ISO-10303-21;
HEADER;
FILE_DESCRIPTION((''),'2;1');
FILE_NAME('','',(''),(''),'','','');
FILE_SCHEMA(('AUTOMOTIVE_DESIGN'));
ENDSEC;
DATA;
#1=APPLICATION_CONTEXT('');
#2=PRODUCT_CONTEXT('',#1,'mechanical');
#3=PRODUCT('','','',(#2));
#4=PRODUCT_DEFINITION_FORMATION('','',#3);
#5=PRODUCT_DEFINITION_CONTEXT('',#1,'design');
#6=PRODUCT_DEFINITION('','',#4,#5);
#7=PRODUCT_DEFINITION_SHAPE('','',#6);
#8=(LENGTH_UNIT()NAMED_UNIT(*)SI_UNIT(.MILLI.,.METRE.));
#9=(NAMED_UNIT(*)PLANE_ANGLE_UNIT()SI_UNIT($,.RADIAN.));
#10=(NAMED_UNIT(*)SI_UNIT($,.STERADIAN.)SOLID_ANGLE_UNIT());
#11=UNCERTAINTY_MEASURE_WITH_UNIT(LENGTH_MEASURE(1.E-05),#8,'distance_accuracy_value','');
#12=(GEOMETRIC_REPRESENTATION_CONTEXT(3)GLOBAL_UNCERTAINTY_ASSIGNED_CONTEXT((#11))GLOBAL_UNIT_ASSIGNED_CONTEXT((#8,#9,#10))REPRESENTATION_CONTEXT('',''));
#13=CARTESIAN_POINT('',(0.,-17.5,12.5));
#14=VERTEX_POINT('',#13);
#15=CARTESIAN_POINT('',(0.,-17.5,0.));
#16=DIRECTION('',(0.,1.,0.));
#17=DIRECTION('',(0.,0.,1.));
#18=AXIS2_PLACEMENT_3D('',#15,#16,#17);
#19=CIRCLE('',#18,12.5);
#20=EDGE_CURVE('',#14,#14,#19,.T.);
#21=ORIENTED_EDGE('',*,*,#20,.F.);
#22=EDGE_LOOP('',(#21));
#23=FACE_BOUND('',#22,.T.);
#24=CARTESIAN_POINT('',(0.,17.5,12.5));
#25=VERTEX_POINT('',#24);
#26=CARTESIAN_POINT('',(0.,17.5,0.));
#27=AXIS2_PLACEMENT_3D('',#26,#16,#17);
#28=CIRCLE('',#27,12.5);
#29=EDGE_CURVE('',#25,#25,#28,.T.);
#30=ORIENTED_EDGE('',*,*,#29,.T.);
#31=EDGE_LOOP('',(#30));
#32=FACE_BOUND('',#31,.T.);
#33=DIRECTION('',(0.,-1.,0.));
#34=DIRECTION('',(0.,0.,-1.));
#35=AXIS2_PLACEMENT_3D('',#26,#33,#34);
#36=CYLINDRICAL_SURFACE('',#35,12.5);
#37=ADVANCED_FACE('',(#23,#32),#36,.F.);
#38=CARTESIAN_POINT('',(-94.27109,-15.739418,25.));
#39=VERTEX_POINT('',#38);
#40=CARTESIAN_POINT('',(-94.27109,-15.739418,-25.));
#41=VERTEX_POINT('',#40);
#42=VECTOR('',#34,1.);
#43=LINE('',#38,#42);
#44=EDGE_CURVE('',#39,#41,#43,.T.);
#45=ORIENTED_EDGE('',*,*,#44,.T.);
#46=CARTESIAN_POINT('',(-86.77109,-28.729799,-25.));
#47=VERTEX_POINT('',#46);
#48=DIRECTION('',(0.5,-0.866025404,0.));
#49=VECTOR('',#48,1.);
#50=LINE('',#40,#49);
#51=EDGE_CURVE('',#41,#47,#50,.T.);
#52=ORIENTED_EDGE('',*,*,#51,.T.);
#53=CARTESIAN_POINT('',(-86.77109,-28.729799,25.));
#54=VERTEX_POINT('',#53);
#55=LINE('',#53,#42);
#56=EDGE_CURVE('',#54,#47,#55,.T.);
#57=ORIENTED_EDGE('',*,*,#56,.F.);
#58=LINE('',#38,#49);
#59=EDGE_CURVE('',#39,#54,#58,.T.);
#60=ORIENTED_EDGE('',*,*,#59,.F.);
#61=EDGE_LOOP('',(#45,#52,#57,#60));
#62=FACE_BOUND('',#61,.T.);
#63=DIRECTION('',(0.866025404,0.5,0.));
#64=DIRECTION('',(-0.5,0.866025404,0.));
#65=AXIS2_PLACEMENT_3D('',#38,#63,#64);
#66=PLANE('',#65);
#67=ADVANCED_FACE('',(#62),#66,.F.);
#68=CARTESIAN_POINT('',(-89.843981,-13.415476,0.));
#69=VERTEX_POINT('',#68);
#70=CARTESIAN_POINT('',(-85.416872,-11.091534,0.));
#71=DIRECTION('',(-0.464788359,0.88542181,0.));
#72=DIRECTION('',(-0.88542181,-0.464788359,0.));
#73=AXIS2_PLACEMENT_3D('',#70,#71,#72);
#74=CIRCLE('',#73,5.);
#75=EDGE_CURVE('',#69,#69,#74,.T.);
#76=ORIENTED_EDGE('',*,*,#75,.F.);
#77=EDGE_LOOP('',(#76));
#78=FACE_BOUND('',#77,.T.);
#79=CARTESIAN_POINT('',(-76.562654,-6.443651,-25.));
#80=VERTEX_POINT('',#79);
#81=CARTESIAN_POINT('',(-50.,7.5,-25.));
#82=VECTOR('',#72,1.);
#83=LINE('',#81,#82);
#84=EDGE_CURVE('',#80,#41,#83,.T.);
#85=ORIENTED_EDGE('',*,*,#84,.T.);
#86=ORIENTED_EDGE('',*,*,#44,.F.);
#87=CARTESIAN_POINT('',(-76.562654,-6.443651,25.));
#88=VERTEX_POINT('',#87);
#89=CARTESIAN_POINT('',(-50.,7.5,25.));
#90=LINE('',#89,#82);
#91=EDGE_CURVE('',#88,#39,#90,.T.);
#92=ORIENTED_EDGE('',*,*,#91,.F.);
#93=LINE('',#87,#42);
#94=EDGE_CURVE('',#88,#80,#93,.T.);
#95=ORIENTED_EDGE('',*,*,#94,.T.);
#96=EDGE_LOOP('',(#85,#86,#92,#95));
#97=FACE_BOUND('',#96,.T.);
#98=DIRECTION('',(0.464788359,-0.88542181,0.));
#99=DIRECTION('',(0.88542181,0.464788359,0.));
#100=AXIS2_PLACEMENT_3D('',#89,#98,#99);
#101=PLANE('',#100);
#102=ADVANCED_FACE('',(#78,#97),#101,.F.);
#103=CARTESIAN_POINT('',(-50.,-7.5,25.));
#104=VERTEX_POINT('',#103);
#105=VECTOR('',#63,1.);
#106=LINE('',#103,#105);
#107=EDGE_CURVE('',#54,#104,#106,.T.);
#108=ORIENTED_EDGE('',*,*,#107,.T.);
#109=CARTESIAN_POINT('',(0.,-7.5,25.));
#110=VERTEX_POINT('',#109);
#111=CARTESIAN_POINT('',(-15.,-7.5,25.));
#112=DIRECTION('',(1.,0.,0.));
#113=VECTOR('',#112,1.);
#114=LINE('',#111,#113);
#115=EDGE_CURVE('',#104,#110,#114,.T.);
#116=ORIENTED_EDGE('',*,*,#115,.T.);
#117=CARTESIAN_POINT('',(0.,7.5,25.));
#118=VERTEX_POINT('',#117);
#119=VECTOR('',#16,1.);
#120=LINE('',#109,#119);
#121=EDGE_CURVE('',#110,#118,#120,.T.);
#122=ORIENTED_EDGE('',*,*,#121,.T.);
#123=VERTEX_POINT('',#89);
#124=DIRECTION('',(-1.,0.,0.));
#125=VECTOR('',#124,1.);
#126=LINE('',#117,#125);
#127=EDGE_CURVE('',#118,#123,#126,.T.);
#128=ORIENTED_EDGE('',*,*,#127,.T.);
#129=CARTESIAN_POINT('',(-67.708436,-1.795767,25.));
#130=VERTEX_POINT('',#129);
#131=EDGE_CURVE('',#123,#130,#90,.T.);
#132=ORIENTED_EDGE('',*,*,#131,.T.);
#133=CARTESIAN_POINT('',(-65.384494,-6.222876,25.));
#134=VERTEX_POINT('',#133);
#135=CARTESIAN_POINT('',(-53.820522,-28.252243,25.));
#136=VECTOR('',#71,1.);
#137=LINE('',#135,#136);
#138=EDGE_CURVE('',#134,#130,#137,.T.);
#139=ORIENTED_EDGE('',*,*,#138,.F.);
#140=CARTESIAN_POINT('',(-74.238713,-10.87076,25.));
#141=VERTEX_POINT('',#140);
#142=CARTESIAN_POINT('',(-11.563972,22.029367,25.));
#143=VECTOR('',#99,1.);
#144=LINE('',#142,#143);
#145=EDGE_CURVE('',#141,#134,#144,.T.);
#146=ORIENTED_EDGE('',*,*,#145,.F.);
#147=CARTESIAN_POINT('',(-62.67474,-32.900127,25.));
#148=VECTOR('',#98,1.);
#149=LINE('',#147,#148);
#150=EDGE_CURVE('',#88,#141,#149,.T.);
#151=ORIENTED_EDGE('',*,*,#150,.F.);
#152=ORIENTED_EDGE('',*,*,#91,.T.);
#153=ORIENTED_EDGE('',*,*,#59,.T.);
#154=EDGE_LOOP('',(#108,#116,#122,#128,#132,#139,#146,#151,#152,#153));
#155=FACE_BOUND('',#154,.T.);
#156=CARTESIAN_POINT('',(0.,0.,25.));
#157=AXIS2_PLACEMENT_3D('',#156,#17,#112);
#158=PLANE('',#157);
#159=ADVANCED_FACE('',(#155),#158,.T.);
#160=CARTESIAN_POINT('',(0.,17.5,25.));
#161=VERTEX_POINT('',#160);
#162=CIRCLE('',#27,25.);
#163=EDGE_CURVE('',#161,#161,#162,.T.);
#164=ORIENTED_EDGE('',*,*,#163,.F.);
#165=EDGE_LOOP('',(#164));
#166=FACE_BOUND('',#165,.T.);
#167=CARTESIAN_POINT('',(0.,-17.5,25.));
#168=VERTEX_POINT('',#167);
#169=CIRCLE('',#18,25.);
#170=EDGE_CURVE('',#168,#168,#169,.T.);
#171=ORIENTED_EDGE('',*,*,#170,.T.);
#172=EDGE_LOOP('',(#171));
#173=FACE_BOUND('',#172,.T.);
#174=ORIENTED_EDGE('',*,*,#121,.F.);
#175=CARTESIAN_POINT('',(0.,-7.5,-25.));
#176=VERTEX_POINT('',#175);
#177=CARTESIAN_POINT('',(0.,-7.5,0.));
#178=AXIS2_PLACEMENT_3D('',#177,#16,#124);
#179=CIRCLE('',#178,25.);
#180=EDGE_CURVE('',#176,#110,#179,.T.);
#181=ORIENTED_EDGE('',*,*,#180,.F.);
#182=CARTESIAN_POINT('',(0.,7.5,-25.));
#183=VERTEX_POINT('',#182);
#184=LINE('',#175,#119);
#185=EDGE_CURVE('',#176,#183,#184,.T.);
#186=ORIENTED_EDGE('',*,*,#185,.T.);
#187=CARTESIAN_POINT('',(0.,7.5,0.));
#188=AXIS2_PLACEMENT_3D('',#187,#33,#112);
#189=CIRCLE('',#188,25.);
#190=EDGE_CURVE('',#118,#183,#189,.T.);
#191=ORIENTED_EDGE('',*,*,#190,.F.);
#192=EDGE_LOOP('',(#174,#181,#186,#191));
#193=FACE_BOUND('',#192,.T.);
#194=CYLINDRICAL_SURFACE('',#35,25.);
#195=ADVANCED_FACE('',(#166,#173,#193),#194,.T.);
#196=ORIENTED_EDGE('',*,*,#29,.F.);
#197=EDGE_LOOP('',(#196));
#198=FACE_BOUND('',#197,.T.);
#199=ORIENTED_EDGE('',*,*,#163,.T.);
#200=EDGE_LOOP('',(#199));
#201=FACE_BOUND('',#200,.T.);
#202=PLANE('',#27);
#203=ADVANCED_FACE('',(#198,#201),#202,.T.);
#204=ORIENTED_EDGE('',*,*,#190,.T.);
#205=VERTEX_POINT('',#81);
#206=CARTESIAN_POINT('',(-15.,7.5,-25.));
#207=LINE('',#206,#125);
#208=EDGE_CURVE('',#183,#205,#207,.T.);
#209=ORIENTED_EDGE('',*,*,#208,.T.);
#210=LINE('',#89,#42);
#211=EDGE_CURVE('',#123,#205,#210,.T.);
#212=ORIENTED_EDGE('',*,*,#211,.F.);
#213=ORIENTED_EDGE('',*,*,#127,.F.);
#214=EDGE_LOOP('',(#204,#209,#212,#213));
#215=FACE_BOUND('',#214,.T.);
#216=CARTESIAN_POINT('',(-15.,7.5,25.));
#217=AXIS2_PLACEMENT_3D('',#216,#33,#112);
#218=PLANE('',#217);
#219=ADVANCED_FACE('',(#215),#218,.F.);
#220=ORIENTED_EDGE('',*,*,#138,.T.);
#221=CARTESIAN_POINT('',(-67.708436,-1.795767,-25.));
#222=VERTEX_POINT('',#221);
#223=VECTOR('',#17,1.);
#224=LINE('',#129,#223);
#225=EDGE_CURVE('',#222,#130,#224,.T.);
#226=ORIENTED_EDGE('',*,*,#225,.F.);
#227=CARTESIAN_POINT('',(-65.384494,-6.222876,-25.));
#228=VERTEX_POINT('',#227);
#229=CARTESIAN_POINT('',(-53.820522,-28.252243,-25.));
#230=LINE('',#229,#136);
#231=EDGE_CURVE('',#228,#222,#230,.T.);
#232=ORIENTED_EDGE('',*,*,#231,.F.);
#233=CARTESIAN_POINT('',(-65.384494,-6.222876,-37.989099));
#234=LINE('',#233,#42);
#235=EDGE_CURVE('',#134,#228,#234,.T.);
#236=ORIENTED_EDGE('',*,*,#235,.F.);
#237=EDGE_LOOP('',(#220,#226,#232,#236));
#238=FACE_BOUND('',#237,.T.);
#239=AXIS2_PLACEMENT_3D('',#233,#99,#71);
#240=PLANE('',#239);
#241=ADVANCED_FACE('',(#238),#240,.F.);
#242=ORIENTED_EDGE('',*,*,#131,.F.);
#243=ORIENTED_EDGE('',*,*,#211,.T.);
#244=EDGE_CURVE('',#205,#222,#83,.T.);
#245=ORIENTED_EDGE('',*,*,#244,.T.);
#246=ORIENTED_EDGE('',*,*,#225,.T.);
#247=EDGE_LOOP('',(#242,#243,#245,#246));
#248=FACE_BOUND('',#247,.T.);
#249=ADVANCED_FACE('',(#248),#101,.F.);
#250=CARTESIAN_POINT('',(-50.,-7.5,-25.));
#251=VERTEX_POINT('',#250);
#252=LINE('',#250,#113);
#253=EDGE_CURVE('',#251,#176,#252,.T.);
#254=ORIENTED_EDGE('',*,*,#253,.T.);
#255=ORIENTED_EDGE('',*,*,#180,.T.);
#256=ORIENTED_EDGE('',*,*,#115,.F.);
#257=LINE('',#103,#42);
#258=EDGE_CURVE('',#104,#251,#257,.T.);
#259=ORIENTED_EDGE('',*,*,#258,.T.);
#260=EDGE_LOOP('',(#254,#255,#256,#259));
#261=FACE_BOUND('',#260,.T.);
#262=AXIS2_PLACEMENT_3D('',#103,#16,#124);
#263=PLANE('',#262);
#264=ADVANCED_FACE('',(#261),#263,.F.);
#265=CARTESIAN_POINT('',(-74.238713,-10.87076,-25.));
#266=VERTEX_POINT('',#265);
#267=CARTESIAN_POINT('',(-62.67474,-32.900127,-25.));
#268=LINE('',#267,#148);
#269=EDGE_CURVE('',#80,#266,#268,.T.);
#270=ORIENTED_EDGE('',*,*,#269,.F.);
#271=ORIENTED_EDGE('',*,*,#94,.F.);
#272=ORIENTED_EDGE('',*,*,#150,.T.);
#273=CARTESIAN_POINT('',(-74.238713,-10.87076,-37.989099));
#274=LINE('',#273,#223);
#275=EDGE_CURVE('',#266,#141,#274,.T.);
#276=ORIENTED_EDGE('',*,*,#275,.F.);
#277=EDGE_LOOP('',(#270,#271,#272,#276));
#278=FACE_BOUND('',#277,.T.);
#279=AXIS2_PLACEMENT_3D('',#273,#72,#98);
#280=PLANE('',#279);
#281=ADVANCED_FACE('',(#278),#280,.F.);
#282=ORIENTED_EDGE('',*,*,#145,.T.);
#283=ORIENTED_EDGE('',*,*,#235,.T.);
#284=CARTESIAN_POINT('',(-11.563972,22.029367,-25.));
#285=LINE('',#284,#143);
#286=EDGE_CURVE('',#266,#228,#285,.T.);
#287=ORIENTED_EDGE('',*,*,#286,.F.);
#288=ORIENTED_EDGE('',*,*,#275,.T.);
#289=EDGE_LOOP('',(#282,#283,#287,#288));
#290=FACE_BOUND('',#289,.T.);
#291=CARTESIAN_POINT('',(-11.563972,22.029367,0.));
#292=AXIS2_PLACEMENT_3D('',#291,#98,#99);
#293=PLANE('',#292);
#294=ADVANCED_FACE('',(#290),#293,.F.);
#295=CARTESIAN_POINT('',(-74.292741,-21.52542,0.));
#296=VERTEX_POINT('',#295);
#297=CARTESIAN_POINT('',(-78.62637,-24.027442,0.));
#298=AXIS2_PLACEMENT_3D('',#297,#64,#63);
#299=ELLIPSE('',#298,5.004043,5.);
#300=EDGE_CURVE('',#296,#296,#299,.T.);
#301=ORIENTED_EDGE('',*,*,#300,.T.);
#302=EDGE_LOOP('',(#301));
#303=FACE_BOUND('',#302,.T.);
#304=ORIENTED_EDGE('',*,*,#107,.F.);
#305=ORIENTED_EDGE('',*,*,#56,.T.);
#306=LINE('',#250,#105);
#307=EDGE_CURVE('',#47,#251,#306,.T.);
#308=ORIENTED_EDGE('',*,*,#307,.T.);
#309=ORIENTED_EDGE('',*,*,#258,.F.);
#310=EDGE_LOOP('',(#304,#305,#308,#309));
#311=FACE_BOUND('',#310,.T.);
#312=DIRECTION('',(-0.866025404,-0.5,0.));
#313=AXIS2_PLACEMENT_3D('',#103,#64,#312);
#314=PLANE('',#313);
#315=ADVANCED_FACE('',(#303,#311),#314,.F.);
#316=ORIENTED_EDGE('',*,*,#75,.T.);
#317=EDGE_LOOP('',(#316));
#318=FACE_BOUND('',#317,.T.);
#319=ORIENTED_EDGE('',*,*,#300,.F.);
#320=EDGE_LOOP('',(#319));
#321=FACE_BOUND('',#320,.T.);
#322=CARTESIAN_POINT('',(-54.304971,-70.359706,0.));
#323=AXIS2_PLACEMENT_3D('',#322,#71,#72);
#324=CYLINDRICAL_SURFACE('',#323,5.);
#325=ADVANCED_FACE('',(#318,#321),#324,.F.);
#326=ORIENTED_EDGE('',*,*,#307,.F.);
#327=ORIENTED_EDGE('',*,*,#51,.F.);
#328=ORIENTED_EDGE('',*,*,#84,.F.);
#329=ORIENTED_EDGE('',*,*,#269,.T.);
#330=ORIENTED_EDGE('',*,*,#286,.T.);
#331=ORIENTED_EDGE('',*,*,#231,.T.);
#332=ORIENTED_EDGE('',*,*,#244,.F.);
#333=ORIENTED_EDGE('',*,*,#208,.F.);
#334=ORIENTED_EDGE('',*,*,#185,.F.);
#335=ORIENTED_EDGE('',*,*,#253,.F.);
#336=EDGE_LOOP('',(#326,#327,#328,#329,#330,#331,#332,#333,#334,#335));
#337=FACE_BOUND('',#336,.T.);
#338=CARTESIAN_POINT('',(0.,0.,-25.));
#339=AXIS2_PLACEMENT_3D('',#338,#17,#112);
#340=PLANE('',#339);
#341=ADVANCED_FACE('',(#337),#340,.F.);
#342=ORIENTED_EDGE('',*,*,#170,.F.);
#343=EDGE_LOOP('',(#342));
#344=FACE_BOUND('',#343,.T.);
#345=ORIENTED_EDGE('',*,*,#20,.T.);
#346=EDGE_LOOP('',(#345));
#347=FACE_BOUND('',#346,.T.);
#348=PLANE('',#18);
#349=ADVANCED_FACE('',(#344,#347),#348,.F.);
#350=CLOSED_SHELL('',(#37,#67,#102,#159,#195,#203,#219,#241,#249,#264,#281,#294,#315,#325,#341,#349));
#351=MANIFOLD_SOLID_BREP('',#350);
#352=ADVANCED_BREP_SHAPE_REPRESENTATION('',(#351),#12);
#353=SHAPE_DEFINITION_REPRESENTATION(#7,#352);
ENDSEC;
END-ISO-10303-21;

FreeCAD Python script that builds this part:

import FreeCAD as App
import Part
import Sketcher
Q = App.Units.Quantity

doc = App.newDocument("Part")
body = doc.addObject("PartDesign::Body", "Body")

sketch1 = doc.addObject("Sketcher::SketchObject", "Sketch")
body.addObject(sketch1)
sketch1.AttachmentSupport = (doc.XZ_Plane, [""])
sketch1.MapMode = "FlatFace"
sketch1.addGeometry(Part.Circle(App.Vector(0, 0, 0), App.Vector(0, 0, 1), 25), False)
sketch1.addGeometry(Part.Circle(App.Vector(0, 0, 0), App.Vector(0, 0, 1), 12), False)
sketch1.addConstraint(Sketcher.Constraint("Coincident", 0, 3, -1, 1))
sketch1.addConstraint(Sketcher.Constraint("Coincident", 1, 3, -1, 1))
sketch1.addConstraint(Sketcher.Constraint("Diameter", 0, 50.0))
sketch1.addConstraint(Sketcher.Constraint("Diameter", 1, 25.0))
pad1 = doc.addObject("PartDesign::Pad", "Pad")
body.addObject(pad1)
pad1.Profile = sketch1
pad1.Length = 35
pad1.Midplane = True

sketch2 = doc.addObject("Sketcher::SketchObject", "Sketch001")
body.addObject(sketch2)
sketch2.AttachmentSupport = (doc.XY_Plane, [""])
sketch2.MapMode = "FlatFace"
sketch2.addGeometry(Part.LineSegment(App.Vector(-50, 8, 0), App.Vector(-50, -8, 0)), False)
sketch2.addGeometry(Part.LineSegment(App.Vector(-50, -8, 0), App.Vector(0, -8, 0)), False)
sketch2.addGeometry(Part.LineSegment(App.Vector(0, -8, 0), App.Vector(0, 8, 0)), False)
sketch2.addGeometry(Part.LineSegment(App.Vector(0, 8, 0), App.Vector(-50, 8, 0)), False)
sketch2.addConstraint(Sketcher.Constraint("Coincident", 0, 2, 1, 1))
sketch2.addConstraint(Sketcher.Constraint("Coincident", 1, 2, 2, 1))
sketch2.addConstraint(Sketcher.Constraint("Coincident", 2, 2, 3, 1))
sketch2.addConstraint(Sketcher.Constraint("Coincident", 3, 2, 0, 1))
sketch2.addConstraint(Sketcher.Constraint("Vertical", 0))
sketch2.addConstraint(Sketcher.Constraint("Horizontal", 1))
sketch2.addConstraint(Sketcher.Constraint("Vertical", 2))
sketch2.addConstraint(Sketcher.Constraint("Horizontal", 3))
sketch2.addConstraint(Sketcher.Constraint("Symmetric", 1, 2, 2, 2, -1, 1))
sketch2.addConstraint(Sketcher.Constraint("DistanceX", 1, 1, 1, 2, 50.0))
sketch2.addConstraint(Sketcher.Constraint("DistanceY", 0, 2, 0, 1, 15.0))
pad2 = doc.addObject("PartDesign::Pad", "Pad001")
body.addObject(pad2)
pad2.Profile = sketch2
pad2.Length = 50
pad2.Midplane = True

sketch3 = doc.addObject("Sketcher::SketchObject", "Sketch002")
body.addObject(sketch3)
sketch3.AttachmentSupport = (doc.XZ_Plane, [""])
sketch3.MapMode = "FlatFace"
sketch3.AttachmentOffset = App.Placement(App.Vector(0, 0, 32.5), App.Rotation())
sketch3.addGeometry(Part.Circle(App.Vector(0, 0, 0), App.Vector(0, 0, 1), 12), False)
sketch3.addConstraint(Sketcher.Constraint("Coincident", 0, 3, -1, 1))
sketch3.addConstraint(Sketcher.Constraint("Diameter", 0, 25.0))
pocket1 = doc.addObject("PartDesign::Pocket", "Pocket")
body.addObject(pocket1)
pocket1.Profile = sketch3
pocket1.Length = 50

sketch4 = doc.addObject("Sketcher::SketchObject", "Sketch003")
body.addObject(sketch4)
sketch4.AttachmentSupport = (doc.XY_Plane, [""])
sketch4.MapMode = "FlatFace"
sketch4.addGeometry(Part.LineSegment(App.Vector(-50, 8, 0), App.Vector(-94, -16, 0)), False)
sketch4.addGeometry(Part.LineSegment(App.Vector(-94, -16, 0), App.Vector(-87, -29, 0)), False)
sketch4.addGeometry(Part.LineSegment(App.Vector(-87, -29, 0), App.Vector(-50, -8, 0)), False)
sketch4.addGeometry(Part.LineSegment(App.Vector(-50, -8, 0), App.Vector(-50, 8, 0)), False)
sketch4.addConstraint(Sketcher.Constraint("Coincident", 0, 2, 1, 1))
sketch4.addConstraint(Sketcher.Constraint("Coincident", 1, 2, 2, 1))
sketch4.addConstraint(Sketcher.Constraint("Coincident", 2, 2, 3, 1))
sketch4.addConstraint(Sketcher.Constraint("Coincident", 3, 2, 0, 1))
sketch4.addConstraint(Sketcher.Constraint("Vertical", 3))
sketch4.addConstraint(Sketcher.Constraint("Perpendicular", 1, 2))
sketch4.addConstraint(Sketcher.Constraint("DistanceY", 3, 1, 3, 2, 15.0))
sketch4.addConstraint(Sketcher.Constraint("Angle", 1, Q("-60 deg")))
sketch4.addConstraint(Sketcher.Constraint("Distance", 0, 50.0))
sketch4.addConstraint(Sketcher.Constraint("Distance", 1, 15.0))
sketch4.addConstraint(Sketcher.Constraint("DistanceX", 2, 2, -1, 1, 50.0))
sketch4.addConstraint(Sketcher.Constraint("DistanceY", 2, 2, -1, 1, 7.5))
pad3 = doc.addObject("PartDesign::Pad", "Pad002")
body.addObject(pad3)
pad3.Profile = sketch4
pad3.Length = 50
pad3.Midplane = True

sketch5 = doc.addObject("Sketcher::SketchObject", "Sketch004")
body.addObject(sketch5)
sketch5.Placement = App.Placement(App.Vector(-13.887914, 26.456476, 0), App.Rotation(App.Vector(0.88542181, 0.464788359, 0), App.Vector(0, 0, -1), App.Vector(-0.464788359, 0.88542181, 0), "ZXY"))
sketch5.addGeometry(Part.LineSegment(App.Vector(-71, 38, 0), App.Vector(-71, -38, 0)), False)
sketch5.addGeometry(Part.LineSegment(App.Vector(-71, -38, 0), App.Vector(-61, -38, 0)), False)
sketch5.addGeometry(Part.LineSegment(App.Vector(-61, -38, 0), App.Vector(-61, 38, 0)), False)
sketch5.addGeometry(Part.LineSegment(App.Vector(-61, 38, 0), App.Vector(-71, 38, 0)), False)
sketch5.addConstraint(Sketcher.Constraint("Coincident", 0, 2, 1, 1))
sketch5.addConstraint(Sketcher.Constraint("Coincident", 1, 2, 2, 1))
sketch5.addConstraint(Sketcher.Constraint("Coincident", 2, 2, 3, 1))
sketch5.addConstraint(Sketcher.Constraint("Coincident", 3, 2, 0, 1))
sketch5.addConstraint(Sketcher.Constraint("Vertical", 0))
sketch5.addConstraint(Sketcher.Constraint("Horizontal", 1))
sketch5.addConstraint(Sketcher.Constraint("Vertical", 2))
sketch5.addConstraint(Sketcher.Constraint("Horizontal", 3))
sketch5.addConstraint(Sketcher.Constraint("DistanceX", 1, 1, 1, 2, 10.0))
sketch5.addConstraint(Sketcher.Constraint("DistanceY", 0, 2, 0, 1, 75.978198))
sketch5.addConstraint(Sketcher.Constraint("DistanceY", 0, 2, -1, 1, 37.989099))
sketch5.addConstraint(Sketcher.Constraint("DistanceX", 0, 2, -1, 1, 70.785178))
pocket2 = doc.addObject("PartDesign::Pocket", "Pocket001")
body.addObject(pocket2)
pocket2.Profile = sketch5
pocket2.Length = 5

sketch6 = doc.addObject("Sketcher::SketchObject", "Sketch005")
body.addObject(sketch6)
sketch6.Placement = App.Placement(App.Vector(-13.887914, 26.456476, 0), App.Rotation(App.Vector(0.88542181, 0.464788359, 0), App.Vector(0, 0, -1), App.Vector(-0.464788359, 0.88542181, 0), "ZXY"))
sketch6.addGeometry(Part.Circle(App.Vector(-81, 0, 0), App.Vector(0, 0, 1), 5), False)
sketch6.addConstraint(Sketcher.Constraint("PointOnObject", 0, 3, -1))
sketch6.addConstraint(Sketcher.Constraint("Diameter", 0, 10.0))
sketch6.addConstraint(Sketcher.Constraint("DistanceX", 0, 3, -1, 1, 80.785178))
pocket3 = doc.addObject("PartDesign::Pocket", "Pocket002")
body.addObject(pocket3)
pocket3.Profile = sketch6
pocket3.Type = "ThroughAll"

doc.recompute()
